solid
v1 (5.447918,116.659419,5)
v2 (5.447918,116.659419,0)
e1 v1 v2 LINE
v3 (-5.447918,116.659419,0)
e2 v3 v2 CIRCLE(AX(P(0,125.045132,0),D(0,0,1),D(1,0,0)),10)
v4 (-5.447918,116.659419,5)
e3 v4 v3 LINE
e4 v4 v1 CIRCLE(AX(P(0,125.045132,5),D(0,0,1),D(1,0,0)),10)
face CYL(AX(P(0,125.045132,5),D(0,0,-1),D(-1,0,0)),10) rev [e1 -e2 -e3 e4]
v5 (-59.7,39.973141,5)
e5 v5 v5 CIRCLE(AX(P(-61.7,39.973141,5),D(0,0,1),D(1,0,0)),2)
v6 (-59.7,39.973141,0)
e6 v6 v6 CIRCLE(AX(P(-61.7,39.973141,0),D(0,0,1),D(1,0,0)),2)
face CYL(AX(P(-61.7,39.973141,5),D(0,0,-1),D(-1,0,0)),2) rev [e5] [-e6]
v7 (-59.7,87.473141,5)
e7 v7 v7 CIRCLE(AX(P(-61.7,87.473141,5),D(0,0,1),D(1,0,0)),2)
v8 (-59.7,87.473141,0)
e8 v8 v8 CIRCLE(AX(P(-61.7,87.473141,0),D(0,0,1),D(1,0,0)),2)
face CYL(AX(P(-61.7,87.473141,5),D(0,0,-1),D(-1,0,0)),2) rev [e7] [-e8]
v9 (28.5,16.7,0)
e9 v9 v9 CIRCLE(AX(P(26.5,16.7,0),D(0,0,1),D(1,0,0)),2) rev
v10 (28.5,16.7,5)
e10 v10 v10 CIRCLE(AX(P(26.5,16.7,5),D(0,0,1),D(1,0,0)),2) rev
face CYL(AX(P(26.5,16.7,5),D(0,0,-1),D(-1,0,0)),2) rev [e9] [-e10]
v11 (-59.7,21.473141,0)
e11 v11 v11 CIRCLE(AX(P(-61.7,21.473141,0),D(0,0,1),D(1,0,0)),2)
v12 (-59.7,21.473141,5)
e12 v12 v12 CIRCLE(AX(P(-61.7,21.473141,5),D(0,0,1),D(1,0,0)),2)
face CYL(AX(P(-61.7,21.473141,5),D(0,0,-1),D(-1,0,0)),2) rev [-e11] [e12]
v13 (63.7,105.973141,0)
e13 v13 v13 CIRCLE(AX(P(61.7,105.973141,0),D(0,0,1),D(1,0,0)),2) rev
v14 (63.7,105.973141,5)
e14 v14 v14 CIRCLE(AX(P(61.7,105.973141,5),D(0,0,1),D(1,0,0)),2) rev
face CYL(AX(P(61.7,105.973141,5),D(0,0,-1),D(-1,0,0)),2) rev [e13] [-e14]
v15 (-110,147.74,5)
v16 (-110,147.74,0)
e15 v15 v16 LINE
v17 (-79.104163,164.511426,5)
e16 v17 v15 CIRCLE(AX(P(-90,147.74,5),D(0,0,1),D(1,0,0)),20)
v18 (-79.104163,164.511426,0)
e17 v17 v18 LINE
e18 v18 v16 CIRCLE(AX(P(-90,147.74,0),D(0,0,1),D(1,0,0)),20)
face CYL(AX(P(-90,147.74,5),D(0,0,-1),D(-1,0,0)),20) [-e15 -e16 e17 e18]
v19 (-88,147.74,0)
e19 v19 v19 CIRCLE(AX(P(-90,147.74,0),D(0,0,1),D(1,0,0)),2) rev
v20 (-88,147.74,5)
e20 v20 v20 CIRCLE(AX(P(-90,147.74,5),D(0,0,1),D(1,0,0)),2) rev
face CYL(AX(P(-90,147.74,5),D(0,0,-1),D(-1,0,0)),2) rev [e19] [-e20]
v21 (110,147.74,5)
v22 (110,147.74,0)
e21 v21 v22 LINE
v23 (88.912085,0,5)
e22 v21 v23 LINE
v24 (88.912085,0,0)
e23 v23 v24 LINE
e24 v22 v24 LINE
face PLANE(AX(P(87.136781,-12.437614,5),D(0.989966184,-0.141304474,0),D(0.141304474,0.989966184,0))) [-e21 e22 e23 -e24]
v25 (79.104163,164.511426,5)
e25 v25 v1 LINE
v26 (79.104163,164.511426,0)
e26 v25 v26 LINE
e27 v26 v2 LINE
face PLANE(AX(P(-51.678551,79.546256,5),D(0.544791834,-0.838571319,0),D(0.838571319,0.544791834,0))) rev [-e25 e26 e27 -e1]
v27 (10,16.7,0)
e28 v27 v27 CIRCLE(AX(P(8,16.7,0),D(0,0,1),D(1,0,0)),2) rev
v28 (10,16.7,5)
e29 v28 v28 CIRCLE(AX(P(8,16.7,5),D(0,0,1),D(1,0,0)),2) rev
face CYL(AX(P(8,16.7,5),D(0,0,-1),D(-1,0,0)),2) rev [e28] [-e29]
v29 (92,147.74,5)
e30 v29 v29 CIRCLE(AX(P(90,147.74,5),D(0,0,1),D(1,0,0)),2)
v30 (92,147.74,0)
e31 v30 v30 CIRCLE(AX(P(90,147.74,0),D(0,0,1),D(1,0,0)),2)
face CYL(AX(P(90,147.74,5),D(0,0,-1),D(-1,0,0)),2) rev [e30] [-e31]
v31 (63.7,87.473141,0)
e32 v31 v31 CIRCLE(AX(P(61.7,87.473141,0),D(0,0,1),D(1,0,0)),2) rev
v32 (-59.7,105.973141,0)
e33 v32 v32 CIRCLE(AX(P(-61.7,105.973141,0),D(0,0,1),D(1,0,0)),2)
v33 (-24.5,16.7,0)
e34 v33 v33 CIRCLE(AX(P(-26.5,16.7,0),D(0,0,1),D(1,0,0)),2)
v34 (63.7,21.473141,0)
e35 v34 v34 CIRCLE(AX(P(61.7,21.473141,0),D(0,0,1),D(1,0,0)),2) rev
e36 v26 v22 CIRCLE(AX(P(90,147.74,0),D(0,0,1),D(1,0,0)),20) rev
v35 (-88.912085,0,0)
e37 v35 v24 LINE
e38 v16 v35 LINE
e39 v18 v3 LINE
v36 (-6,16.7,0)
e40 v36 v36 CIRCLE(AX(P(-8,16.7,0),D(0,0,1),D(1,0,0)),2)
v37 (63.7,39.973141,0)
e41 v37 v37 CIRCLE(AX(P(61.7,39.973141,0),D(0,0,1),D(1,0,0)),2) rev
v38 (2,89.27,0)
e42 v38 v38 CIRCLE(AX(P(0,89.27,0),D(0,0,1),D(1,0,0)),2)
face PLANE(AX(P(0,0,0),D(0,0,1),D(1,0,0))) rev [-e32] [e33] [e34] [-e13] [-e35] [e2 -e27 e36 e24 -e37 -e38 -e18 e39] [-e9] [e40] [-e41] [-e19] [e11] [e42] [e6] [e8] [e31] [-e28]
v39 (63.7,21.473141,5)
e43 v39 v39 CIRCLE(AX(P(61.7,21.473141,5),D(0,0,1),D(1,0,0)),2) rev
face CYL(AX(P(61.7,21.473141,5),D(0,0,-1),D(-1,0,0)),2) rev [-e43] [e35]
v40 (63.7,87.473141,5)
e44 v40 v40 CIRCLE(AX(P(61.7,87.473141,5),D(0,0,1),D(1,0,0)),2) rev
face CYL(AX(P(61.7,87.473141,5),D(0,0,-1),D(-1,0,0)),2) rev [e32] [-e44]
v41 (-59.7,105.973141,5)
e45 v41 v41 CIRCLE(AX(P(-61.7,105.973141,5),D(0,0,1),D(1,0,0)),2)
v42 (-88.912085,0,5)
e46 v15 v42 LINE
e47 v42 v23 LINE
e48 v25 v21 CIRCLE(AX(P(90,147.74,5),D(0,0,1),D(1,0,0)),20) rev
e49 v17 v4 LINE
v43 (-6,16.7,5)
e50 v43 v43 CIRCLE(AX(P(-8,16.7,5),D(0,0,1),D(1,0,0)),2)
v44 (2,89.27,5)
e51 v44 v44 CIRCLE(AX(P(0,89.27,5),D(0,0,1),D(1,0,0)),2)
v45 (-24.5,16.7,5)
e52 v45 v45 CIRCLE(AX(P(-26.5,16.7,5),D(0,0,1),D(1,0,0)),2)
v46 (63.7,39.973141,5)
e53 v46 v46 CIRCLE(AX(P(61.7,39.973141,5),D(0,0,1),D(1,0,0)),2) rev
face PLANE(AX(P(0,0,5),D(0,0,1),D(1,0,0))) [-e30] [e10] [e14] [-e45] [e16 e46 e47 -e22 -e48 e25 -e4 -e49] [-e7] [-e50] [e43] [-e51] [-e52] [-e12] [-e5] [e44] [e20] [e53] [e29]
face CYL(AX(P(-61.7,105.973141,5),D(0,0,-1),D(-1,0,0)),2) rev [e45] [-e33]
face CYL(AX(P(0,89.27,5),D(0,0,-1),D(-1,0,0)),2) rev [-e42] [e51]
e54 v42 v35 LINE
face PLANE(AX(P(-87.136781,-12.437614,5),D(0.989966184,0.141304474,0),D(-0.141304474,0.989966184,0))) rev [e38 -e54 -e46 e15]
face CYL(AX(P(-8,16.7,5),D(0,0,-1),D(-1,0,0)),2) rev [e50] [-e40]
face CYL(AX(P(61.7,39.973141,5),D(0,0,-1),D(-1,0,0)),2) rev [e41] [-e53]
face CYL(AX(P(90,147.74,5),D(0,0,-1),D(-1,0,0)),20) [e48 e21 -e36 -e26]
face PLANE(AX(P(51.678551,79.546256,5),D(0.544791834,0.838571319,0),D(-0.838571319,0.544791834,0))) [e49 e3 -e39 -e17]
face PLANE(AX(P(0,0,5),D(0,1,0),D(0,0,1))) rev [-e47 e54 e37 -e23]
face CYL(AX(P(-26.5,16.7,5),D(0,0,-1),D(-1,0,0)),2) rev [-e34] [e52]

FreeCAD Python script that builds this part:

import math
import FreeCAD as App
import Part
import Sketcher
from FreeCAD import Vector

doc = App.newDocument("Part")
body = doc.addObject("PartDesign::Body", "Body")

# Sketch on XY plane
sketch1 = doc.addObject("Sketcher::SketchObject", "Sketch")
body.addObject(sketch1)
sketch1.AttachmentSupport = (doc.XY_Plane, [""])
sketch1.MapMode = "FlatFace"
sketch1.addGeometry([
    Part.LineSegment(Vector(-110, 147.7, 0), Vector(-88.9, 0, 0)),  # 0
    Part.LineSegment(Vector(-88.9, 0, 0), Vector(88.9, 0, 0)),  # 1
    Part.LineSegment(Vector(88.9, 0, 0), Vector(110, 147.7, 0)),  # 2
    Part.ArcOfCircle(Part.Circle(Vector(90, 147.7, 0), Vector(0, 0, 1), 20), math.radians(0), math.radians(123)),  # 3
    Part.LineSegment(Vector(79.1, 164.5, 0), Vector(5.4, 116.7, 0)),  # 4
    Part.ArcOfCircle(Part.Circle(Vector(0, 125, 0), Vector(0, 0, 1), 10), math.radians(-123), math.radians(-57)),  # 5
    Part.LineSegment(Vector(-5.4, 116.7, 0), Vector(-79.1, 164.5, 0)),  # 6
    Part.ArcOfCircle(Part.Circle(Vector(-90, 147.7, 0), Vector(0, 0, 1), 20), math.radians(57), math.radians(180)),  # 7
    Part.Circle(Vector(-61.7, 21.5, 0), Vector(0, 0, 1), 2),  # 8
    Part.Circle(Vector(-61.7, 40, 0), Vector(0, 0, 1), 2),  # 9
    Part.Circle(Vector(-26.5, 16.7, 0), Vector(0, 0, 1), 2),  # 10
    Part.Circle(Vector(-8, 16.7, 0), Vector(0, 0, 1), 2),  # 11
    Part.Circle(Vector(8, 16.7, 0), Vector(0, 0, 1), 2),  # 12
    Part.Circle(Vector(26.5, 16.7, 0), Vector(0, 0, 1), 2),  # 13
    Part.Circle(Vector(61.7, 21.5, 0), Vector(0, 0, 1), 2),  # 14
    Part.Circle(Vector(61.7, 40, 0), Vector(0, 0, 1), 2),  # 15
    Part.Circle(Vector(-61.7, 87.5, 0), Vector(0, 0, 1), 2),  # 16
    Part.Circle(Vector(-61.7, 106, 0), Vector(0, 0, 1), 2),  # 17
    Part.Circle(Vector(-90, 147.7, 0), Vector(0, 0, 1), 2),  # 18
    Part.Circle(Vector(0, 89.3, 0), Vector(0, 0, 1), 2),  # 19
    Part.Circle(Vector(61.7, 87.5, 0), Vector(0, 0, 1), 2),  # 20
    Part.Circle(Vector(61.7, 106, 0), Vector(0, 0, 1), 2),  # 21
    Part.Circle(Vector(90, 147.7, 0), Vector(0, 0, 1), 2),  # 22
], False)
sketch1.addConstraint([
    Sketcher.Constraint("Coincident", 0, 2, 1, 1),
    Sketcher.Constraint("Coincident", 1, 2, 2, 1),
    Sketcher.Constraint("Coincident", 2, 2, 3, 1),
    Sketcher.Constraint("Tangent", 3, 2, 4, 1),
    Sketcher.Constraint("Tangent", 4, 2, 5, 2),
    Sketcher.Constraint("Tangent", 5, 1, 6, 1),
    Sketcher.Constraint("Tangent", 6, 2, 7, 1),
    Sketcher.Constraint("Coincident", 7, 2, 0, 1),
    Sketcher.Constraint("Horizontal", 1),
    Sketcher.Constraint("Coincident", 18, 3, 7, 3),
    Sketcher.Constraint("Coincident", 22, 3, 3, 3),
    Sketcher.Constraint("Equal", 3, 7),
    Sketcher.Constraint("Equal", 8, 9),
    Sketcher.Constraint("Equal", 9, 10),
    Sketcher.Constraint("Equal", 10, 11),
    Sketcher.Constraint("Equal", 11, 12),
    Sketcher.Constraint("Equal", 12, 13),
    Sketcher.Constraint("Equal", 13, 14),
    Sketcher.Constraint("Equal", 14, 15),
    Sketcher.Constraint("Equal", 15, 16),
    Sketcher.Constraint("Equal", 16, 17),
    Sketcher.Constraint("Equal", 17, 18),
    Sketcher.Constraint("Equal", 18, 19),
    Sketcher.Constraint("Equal", 19, 20),
    Sketcher.Constraint("Equal", 20, 21),
    Sketcher.Constraint("Equal", 21, 22),
    Sketcher.Constraint("Symmetric", 0, 2, 1, 2, -1, 1),
    Sketcher.Constraint("Symmetric", 3, 3, 7, 3, -2),
    Sketcher.Constraint("Symmetric", 11, 3, 12, 3, -2),
    Sketcher.Constraint("Symmetric", 10, 3, 13, 3, -2),
    Sketcher.Constraint("Symmetric", 8, 3, 14, 3, -2),
    Sketcher.Constraint("Symmetric", 9, 3, 15, 3, -2),
    Sketcher.Constraint("Symmetric", 16, 3, 20, 3, -2),
    Sketcher.Constraint("Symmetric", 17, 3, 21, 3, -2),
    Sketcher.Constraint("PointOnObject", 5, 3, -2),
    Sketcher.Constraint("PointOnObject", 19, 3, -2),
    Sketcher.Constraint("Horizontal", 10, 3, 11, 3),
    Sketcher.Constraint("Horizontal", 22, 3, 2, 2),
    Sketcher.Constraint("Horizontal", 2, 2, 7, 2),
    Sketcher.Constraint("Vertical", 8, 3, 9, 3),
    Sketcher.Constraint("Vertical", 9, 3, 16, 3),
    Sketcher.Constraint("Vertical", 16, 3, 17, 3),
    Sketcher.Constraint("Diameter", 8, 4.0),
    Sketcher.Constraint("Radius", 3, 20.0),
    Sketcher.Constraint("Radius", 5, 10.0),
    Sketcher.Constraint("DistanceX", -1, 1, 3, 3, 90.0),
    Sketcher.Constraint("DistanceX", 11, 3, -1, 1, 8.0),
    Sketcher.Constraint("DistanceX", 10, 3, 13, 3, 53.0),
    Sketcher.Constraint("DistanceY", 8, 3, 16, 3, 66.0),
    Sketcher.Constraint("DistanceY", 9, 3, 17, 3, 66.0),
    Sketcher.Constraint("DistanceX", 8, 3, -1, 1, 61.7),
    Sketcher.Constraint("DistanceY", -1, 1, 10, 3, 16.7),
    Sketcher.Constraint("DistanceY", 8, 3, 9, 3, 18.5),
    Sketcher.Constraint("DistanceY", -1, 1, 3, 3, 147.74),
    Sketcher.Constraint("DistanceY", -1, 1, 19, 3, 89.27),
    Sketcher.Constraint("DistanceX", 1, 1, 1, 2, 177.824169),
    Sketcher.Constraint("DistanceY", -1, 1, 8, 3, 21.473141),
    Sketcher.Constraint("DistanceX", -1, 1, 4, 2, 5.447918),
])
pad1 = doc.addObject("PartDesign::Pad", "Pad")
body.addObject(pad1)
pad1.Profile = sketch1
pad1.Length = 5

doc.recompute()
